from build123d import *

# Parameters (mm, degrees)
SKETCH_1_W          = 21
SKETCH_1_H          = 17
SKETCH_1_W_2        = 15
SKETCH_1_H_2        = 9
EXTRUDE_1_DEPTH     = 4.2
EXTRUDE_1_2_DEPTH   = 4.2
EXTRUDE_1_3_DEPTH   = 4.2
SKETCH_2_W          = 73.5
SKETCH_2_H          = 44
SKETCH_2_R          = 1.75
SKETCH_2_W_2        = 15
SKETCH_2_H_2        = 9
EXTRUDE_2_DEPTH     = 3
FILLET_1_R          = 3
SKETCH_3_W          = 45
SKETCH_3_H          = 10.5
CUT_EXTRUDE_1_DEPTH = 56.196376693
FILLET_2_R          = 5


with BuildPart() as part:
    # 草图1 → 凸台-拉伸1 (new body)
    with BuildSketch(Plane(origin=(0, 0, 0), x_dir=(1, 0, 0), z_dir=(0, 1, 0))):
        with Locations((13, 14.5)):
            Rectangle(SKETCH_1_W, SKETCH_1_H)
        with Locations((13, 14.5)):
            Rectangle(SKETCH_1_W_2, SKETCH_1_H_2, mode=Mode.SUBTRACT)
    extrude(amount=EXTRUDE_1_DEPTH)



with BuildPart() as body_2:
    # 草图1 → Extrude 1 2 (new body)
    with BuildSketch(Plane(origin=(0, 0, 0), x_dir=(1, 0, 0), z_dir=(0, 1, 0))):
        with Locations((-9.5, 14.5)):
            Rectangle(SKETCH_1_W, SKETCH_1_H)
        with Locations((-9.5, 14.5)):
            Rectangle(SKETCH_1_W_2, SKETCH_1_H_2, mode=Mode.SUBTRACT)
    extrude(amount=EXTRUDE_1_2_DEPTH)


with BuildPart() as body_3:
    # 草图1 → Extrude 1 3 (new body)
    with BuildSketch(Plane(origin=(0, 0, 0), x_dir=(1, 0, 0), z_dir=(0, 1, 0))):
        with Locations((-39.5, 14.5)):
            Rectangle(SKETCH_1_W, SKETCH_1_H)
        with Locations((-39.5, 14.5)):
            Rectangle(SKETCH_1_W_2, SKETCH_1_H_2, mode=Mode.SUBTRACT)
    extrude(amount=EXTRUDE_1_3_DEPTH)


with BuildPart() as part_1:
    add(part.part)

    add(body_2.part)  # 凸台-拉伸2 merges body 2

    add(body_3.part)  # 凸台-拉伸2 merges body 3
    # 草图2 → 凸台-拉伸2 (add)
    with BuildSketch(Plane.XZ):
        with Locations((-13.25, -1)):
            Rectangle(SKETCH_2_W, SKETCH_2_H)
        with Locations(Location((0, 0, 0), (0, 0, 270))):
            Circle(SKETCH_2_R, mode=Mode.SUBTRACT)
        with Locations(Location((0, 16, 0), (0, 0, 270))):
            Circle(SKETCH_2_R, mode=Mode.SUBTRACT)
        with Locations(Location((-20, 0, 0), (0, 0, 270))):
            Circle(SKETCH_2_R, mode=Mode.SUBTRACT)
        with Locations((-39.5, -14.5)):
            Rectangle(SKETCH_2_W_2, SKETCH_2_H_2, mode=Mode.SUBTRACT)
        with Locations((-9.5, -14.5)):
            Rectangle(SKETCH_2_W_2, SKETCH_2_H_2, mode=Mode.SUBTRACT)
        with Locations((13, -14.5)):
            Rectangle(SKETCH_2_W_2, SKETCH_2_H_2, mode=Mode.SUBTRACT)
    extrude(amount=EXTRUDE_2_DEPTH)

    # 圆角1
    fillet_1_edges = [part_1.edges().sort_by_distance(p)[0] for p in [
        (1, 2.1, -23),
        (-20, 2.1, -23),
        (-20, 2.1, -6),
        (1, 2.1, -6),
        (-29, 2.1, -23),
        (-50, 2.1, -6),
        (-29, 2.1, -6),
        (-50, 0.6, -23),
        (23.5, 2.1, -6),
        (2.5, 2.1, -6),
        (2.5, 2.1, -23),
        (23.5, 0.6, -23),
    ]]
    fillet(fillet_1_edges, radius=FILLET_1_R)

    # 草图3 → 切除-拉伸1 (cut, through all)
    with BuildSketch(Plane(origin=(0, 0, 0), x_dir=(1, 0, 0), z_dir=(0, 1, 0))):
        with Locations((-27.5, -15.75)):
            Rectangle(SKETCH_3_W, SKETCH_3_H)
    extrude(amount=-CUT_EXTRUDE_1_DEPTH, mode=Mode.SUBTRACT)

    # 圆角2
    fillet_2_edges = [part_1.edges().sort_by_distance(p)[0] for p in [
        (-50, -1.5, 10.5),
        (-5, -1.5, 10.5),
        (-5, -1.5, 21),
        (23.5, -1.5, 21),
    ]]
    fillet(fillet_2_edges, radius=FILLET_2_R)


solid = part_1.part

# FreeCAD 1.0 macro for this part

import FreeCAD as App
import Part
import Sketcher
from FreeCAD import Vector


def edges_at(feature, points):
    """Names of the edges that pass closest to the given points."""
    edges = feature.Shape.Edges
    near = lambda p: min(range(len(edges)), key=lambda i: edges[i].distToShape(Part.Vertex(*p))[0])
    return sorted({f"Edge{near(p) + 1}" for p in points})

doc = App.newDocument("Part")
body = doc.addObject("PartDesign::Body", "Body")

# Sketch on XZ plane
sketch1 = doc.addObject("Sketcher::SketchObject", "Sketch")
body.addObject(sketch1)
sketch1.AttachmentSupport = (doc.XZ_Plane, [""])
sketch1.MapMode = "FlatFace"
sketch1.addGeometry(Part.LineSegment(Vector(2, -23, 0), Vector(2, -6, 0)), False)
sketch1.addGeometry(Part.LineSegment(Vector(2, -6, 0), Vector(24, -6, 0)), False)
sketch1.addGeometry(Part.LineSegment(Vector(24, -6, 0), Vector(24, -23, 0)), False)
sketch1.addGeometry(Part.LineSegment(Vector(24, -23, 0), Vector(2, -23, 0)), False)
sketch1.addGeometry(Part.LineSegment(Vector(20, -10, 0), Vector(6, -10, 0)), False)
sketch1.addGeometry(Part.LineSegment(Vector(6, -10, 0), Vector(6, -19, 0)), False)
sketch1.addGeometry(Part.LineSegment(Vector(6, -19, 0), Vector(20, -19, 0)), False)
sketch1.addGeometry(Part.LineSegment(Vector(20, -19, 0), Vector(20, -10, 0)), False)
sketch1.addConstraint(Sketcher.Constraint("Coincident", 0, 2, 1, 1))
sketch1.addConstraint(Sketcher.Constraint("Coincident", 1, 2, 2, 1))
sketch1.addConstraint(Sketcher.Constraint("Coincident", 2, 2, 3, 1))
sketch1.addConstraint(Sketcher.Constraint("Coincident", 3, 2, 0, 1))
sketch1.addConstraint(Sketcher.Constraint("Coincident", 4, 2, 5, 1))
sketch1.addConstraint(Sketcher.Constraint("Coincident", 5, 2, 6, 1))
sketch1.addConstraint(Sketcher.Constraint("Coincident", 6, 2, 7, 1))
sketch1.addConstraint(Sketcher.Constraint("Coincident", 7, 2, 4, 1))
sketch1.addConstraint(Sketcher.Constraint("Vertical", 0))
sketch1.addConstraint(Sketcher.Constraint("Horizontal", 1))
sketch1.addConstraint(Sketcher.Constraint("Vertical", 2))
sketch1.addConstraint(Sketcher.Constraint("Horizontal", 3))
sketch1.addConstraint(Sketcher.Constraint("Horizontal", 4))
sketch1.addConstraint(Sketcher.Constraint("Vertical", 5))
sketch1.addConstraint(Sketcher.Constraint("Horizontal", 6))
sketch1.addConstraint(Sketcher.Constraint("Vertical", 7))
sketch1.addConstraint(Sketcher.Constraint("DistanceX", 1, 1, 1, 2, 21.0))
sketch1.addConstraint(Sketcher.Constraint("DistanceX", 4, 2, 4, 1, 15.0))
sketch1.addConstraint(Sketcher.Constraint("DistanceY", 0, 1, 0, 2, 17.0))
sketch1.addConstraint(Sketcher.Constraint("DistanceY", 5, 2, 5, 1, 9.0))
sketch1.addConstraint(Sketcher.Constraint("DistanceY", 0, 2, -1, 1, 6.0))
sketch1.addConstraint(Sketcher.Constraint("DistanceY", 4, 2, -1, 1, 10.0))
sketch1.addConstraint(Sketcher.Constraint("DistanceX", 0, 2, 4, 2, 3.0))
sketch1.addConstraint(Sketcher.Constraint("DistanceX", -1, 1, 0, 2, 2.5))
pad1 = doc.addObject("PartDesign::Pad", "Pad")
body.addObject(pad1)
pad1.Profile = sketch1
pad1.Length = 4.2
pad1.Reversed = True
body2 = doc.addObject("PartDesign::Body", "Body001")

# Sketch on XZ plane
sketch2 = doc.addObject("Sketcher::SketchObject", "Sketch001")
body2.addObject(sketch2)
sketch2.AttachmentSupport = (doc.getObject("XZ_Plane001"), [""])
sketch2.MapMode = "FlatFace"
sketch2.addGeometry(Part.LineSegment(Vector(-20, -23, 0), Vector(-20, -6, 0)), False)
sketch2.addGeometry(Part.LineSegment(Vector(-20, -6, 0), Vector(1, -6, 0)), False)
sketch2.addGeometry(Part.LineSegment(Vector(1, -6, 0), Vector(1, -23, 0)), False)
sketch2.addGeometry(Part.LineSegment(Vector(1, -23, 0), Vector(-20, -23, 0)), False)
sketch2.addGeometry(Part.LineSegment(Vector(-2, -10, 0), Vector(-17, -10, 0)), False)
sketch2.addGeometry(Part.LineSegment(Vector(-17, -10, 0), Vector(-17, -19, 0)), False)
sketch2.addGeometry(Part.LineSegment(Vector(-17, -19, 0), Vector(-2, -19, 0)), False)
sketch2.addGeometry(Part.LineSegment(Vector(-2, -19, 0), Vector(-2, -10, 0)), False)
sketch2.addConstraint(Sketcher.Constraint("Coincident", 0, 2, 1, 1))
sketch2.addConstraint(Sketcher.Constraint("Coincident", 1, 2, 2, 1))
sketch2.addConstraint(Sketcher.Constraint("Coincident", 2, 2, 3, 1))
sketch2.addConstraint(Sketcher.Constraint("Coincident", 3, 2, 0, 1))
sketch2.addConstraint(Sketcher.Constraint("Coincident", 4, 2, 5, 1))
sketch2.addConstraint(Sketcher.Constraint("Coincident", 5, 2, 6, 1))
sketch2.addConstraint(Sketcher.Constraint("Coincident", 6, 2, 7, 1))
sketch2.addConstraint(Sketcher.Constraint("Coincident", 7, 2, 4, 1))
sketch2.addConstraint(Sketcher.Constraint("Vertical", 0))
sketch2.addConstraint(Sketcher.Constraint("Horizontal", 1))
sketch2.addConstraint(Sketcher.Constraint("Vertical", 2))
sketch2.addConstraint(Sketcher.Constraint("Horizontal", 3))
sketch2.addConstraint(Sketcher.Constraint("Horizontal", 4))
sketch2.addConstraint(Sketcher.Constraint("Vertical", 5))
sketch2.addConstraint(Sketcher.Constraint("Horizontal", 6))
sketch2.addConstraint(Sketcher.Constraint("Vertical", 7))
sketch2.addConstraint(Sketcher.Constraint("DistanceX", 1, 1, 1, 2, 21.0))
sketch2.addConstraint(Sketcher.Constraint("DistanceX", 4, 2, 4, 1, 15.0))
sketch2.addConstraint(Sketcher.Constraint("DistanceY", 0, 1, 0, 2, 17.0))
sketch2.addConstraint(Sketcher.Constraint("DistanceY", 5, 2, 5, 1, 9.0))
sketch2.addConstraint(Sketcher.Constraint("DistanceX", 0, 2, -1, 1, 20.0))
sketch2.addConstraint(Sketcher.Constraint("DistanceY", 0, 2, -1, 1, 6.0))
sketch2.addConstraint(Sketcher.Constraint("DistanceX", 4, 2, -1, 1, 17.0))
sketch2.addConstraint(Sketcher.Constraint("DistanceY", 4, 2, -1, 1, 10.0))
pad2 = doc.addObject("PartDesign::Pad", "Pad001")
body2.addObject(pad2)
pad2.Profile = sketch2
pad2.Length = 4.2
pad2.Reversed = True
body3 = doc.addObject("PartDesign::Body", "Body002")

# Sketch on XZ plane
sketch3 = doc.addObject("Sketcher::SketchObject", "Sketch002")
body3.addObject(sketch3)
sketch3.AttachmentSupport = (doc.getObject("XZ_Plane002"), [""])
sketch3.MapMode = "FlatFace"
sketch3.addGeometry(Part.LineSegment(Vector(-50, -23, 0), Vector(-50, -6, 0)), False)
sketch3.addGeometry(Part.LineSegment(Vector(-50, -6, 0), Vector(-29, -6, 0)), False)
sketch3.addGeometry(Part.LineSegment(Vector(-29, -6, 0), Vector(-29, -23, 0)), False)
sketch3.addGeometry(Part.LineSegment(Vector(-29, -23, 0), Vector(-50, -23, 0)), False)
sketch3.addGeometry(Part.LineSegment(Vector(-32, -10, 0), Vector(-47, -10, 0)), False)
sketch3.addGeometry(Part.LineSegment(Vector(-47, -10, 0), Vector(-47, -19, 0)), False)
sketch3.addGeometry(Part.LineSegment(Vector(-47, -19, 0), Vector(-32, -19, 0)), False)
sketch3.addGeometry(Part.LineSegment(Vector(-32, -19, 0), Vector(-32, -10, 0)), False)
sketch3.addConstraint(Sketcher.Constraint("Coincident", 0, 2, 1, 1))
sketch3.addConstraint(Sketcher.Constraint("Coincident", 1, 2, 2, 1))
sketch3.addConstraint(Sketcher.Constraint("Coincident", 2, 2, 3, 1))
sketch3.addConstraint(Sketcher.Constraint("Coincident", 3, 2, 0, 1))
sketch3.addConstraint(Sketcher.Constraint("Coincident", 4, 2, 5, 1))
sketch3.addConstraint(Sketcher.Constraint("Coincident", 5, 2, 6, 1))
sketch3.addConstraint(Sketcher.Constraint("Coincident", 6, 2, 7, 1))
sketch3.addConstraint(Sketcher.Constraint("Coincident", 7, 2, 4, 1))
sketch3.addConstraint(Sketcher.Constraint("Vertical", 0))
sketch3.addConstraint(Sketcher.Constraint("Horizontal", 1))
sketch3.addConstraint(Sketcher.Constraint("Vertical", 2))
sketch3.addConstraint(Sketcher.Constraint("Horizontal", 3))
sketch3.addConstraint(Sketcher.Constraint("Horizontal", 4))
sketch3.addConstraint(Sketcher.Constraint("Vertical", 5))
sketch3.addConstraint(Sketcher.Constraint("Horizontal", 6))
sketch3.addConstraint(Sketcher.Constraint("Vertical", 7))
sketch3.addConstraint(Sketcher.Constraint("DistanceX", 1, 1, 1, 2, 21.0))
sketch3.addConstraint(Sketcher.Constraint("DistanceX", 4, 2, 4, 1, 15.0))
sketch3.addConstraint(Sketcher.Constraint("DistanceY", 0, 1, 0, 2, 17.0))
sketch3.addConstraint(Sketcher.Constraint("DistanceY", 5, 2, 5, 1, 9.0))
sketch3.addConstraint(Sketcher.Constraint("DistanceX", 0, 2, -1, 1, 50.0))
sketch3.addConstraint(Sketcher.Constraint("DistanceY", 0, 2, -1, 1, 6.0))
sketch3.addConstraint(Sketcher.Constraint("DistanceX", 4, 2, -1, 1, 47.0))
sketch3.addConstraint(Sketcher.Constraint("DistanceY", 4, 2, -1, 1, 10.0))
pad3 = doc.addObject("PartDesign::Pad", "Pad002")
body3.addObject(pad3)
pad3.Profile = sketch3
pad3.Length = 4.2
pad3.Reversed = True
body.AllowCompound = True
doc.recompute()

boolean = doc.addObject("PartDesign::Boolean", "Boolean")
body.addObject(boolean)
boolean.Type = "Fuse"
boolean.addObjects([body2])
doc.recompute()

boolean2 = doc.addObject("PartDesign::Boolean", "Boolean001")
body.addObject(boolean2)
boolean2.Type = "Fuse"
boolean2.addObjects([body3])

# Sketch on XZ plane
sketch4 = doc.addObject("Sketcher::SketchObject", "Sketch003")
body.addObject(sketch4)
sketch4.AttachmentSupport = (doc.XZ_Plane, [""])
sketch4.MapMode = "FlatFace"
sketch4.addGeometry(Part.LineSegment(Vector(-50, 21, 0), Vector(-50, -23, 0)), False)
sketch4.addGeometry(Part.LineSegment(Vector(-50, -23, 0), Vector(23.5, -23, 0)), False)
sketch4.addGeometry(Part.LineSegment(Vector(23.5, -23, 0), Vector(23.5, 21, 0)), False)
sketch4.addGeometry(Part.LineSegment(Vector(23.5, 21, 0), Vector(-50, 21, 0)), False)
sketch4.addGeometry(Part.LineSegment(Vector(-32, -19, 0), Vector(-47, -19, 0)), False)
sketch4.addGeometry(Part.LineSegment(Vector(-47, -19, 0), Vector(-47, -10, 0)), False)
sketch4.addGeometry(Part.LineSegment(Vector(-47, -10, 0), Vector(-32, -10, 0)), False)
sketch4.addGeometry(Part.LineSegment(Vector(-32, -10, 0), Vector(-32, -19, 0)), False)
sketch4.addGeometry(Part.LineSegment(Vector(-2, -19, 0), Vector(-17, -19, 0)), False)
sketch4.addGeometry(Part.LineSegment(Vector(-17, -19, 0), Vector(-17, -10, 0)), False)
sketch4.addGeometry(Part.LineSegment(Vector(-17, -10, 0), Vector(-2, -10, 0)), False)
sketch4.addGeometry(Part.LineSegment(Vector(-2, -10, 0), Vector(-2, -19, 0)), False)
sketch4.addGeometry(Part.LineSegment(Vector(20.5, -19, 0), Vector(5.5, -19, 0)), False)
sketch4.addGeometry(Part.LineSegment(Vector(5.5, -19, 0), Vector(5.5, -10, 0)), False)
sketch4.addGeometry(Part.LineSegment(Vector(5.5, -10, 0), Vector(20.5, -10, 0)), False)
sketch4.addGeometry(Part.LineSegment(Vector(20.5, -10, 0), Vector(20.5, -19, 0)), False)
sketch4.addGeometry(Part.Circle(Vector(-20, 0, 0), Vector(0, 0, 1), 1.8), False)
sketch4.addGeometry(Part.Circle(Vector(0, 0, 0), Vector(0, 0, 1), 1.8), False)
sketch4.addGeometry(Part.Circle(Vector(0, 16, 0), Vector(0, 0, 1), 1.8), False)
sketch4.addConstraint(Sketcher.Constraint("Coincident", 0, 2, 1, 1))
sketch4.addConstraint(Sketcher.Constraint("Coincident", 1, 2, 2, 1))
sketch4.addConstraint(Sketcher.Constraint("Coincident", 2, 2, 3, 1))
sketch4.addConstraint(Sketcher.Constraint("Coincident", 3, 2, 0, 1))
sketch4.addConstraint(Sketcher.Constraint("Coincident", 4, 2, 5, 1))
sketch4.addConstraint(Sketcher.Constraint("Coincident", 5, 2, 6, 1))
sketch4.addConstraint(Sketcher.Constraint("Coincident", 6, 2, 7, 1))
sketch4.addConstraint(Sketcher.Constraint("Coincident", 7, 2, 4, 1))
sketch4.addConstraint(Sketcher.Constraint("Coincident", 8, 2, 9, 1))
sketch4.addConstraint(Sketcher.Constraint("Coincident", 9, 2, 10, 1))
sketch4.addConstraint(Sketcher.Constraint("Coincident", 10, 2, 11, 1))
sketch4.addConstraint(Sketcher.Constraint("Coincident", 11, 2, 8, 1))
sketch4.addConstraint(Sketcher.Constraint("Coincident", 12, 2, 13, 1))
sketch4.addConstraint(Sketcher.Constraint("Coincident", 13, 2, 14, 1))
sketch4.addConstraint(Sketcher.Constraint("Coincident", 14, 2, 15, 1))
sketch4.addConstraint(Sketcher.Constraint("Coincident", 15, 2, 12, 1))
sketch4.addConstraint(Sketcher.Constraint("Vertical", 0))
sketch4.addConstraint(Sketcher.Constraint("Horizontal", 1))
sketch4.addConstraint(Sketcher.Constraint("Vertical", 2))
sketch4.addConstraint(Sketcher.Constraint("Horizontal", 3))
sketch4.addConstraint(Sketcher.Constraint("Horizontal", 4))
sketch4.addConstraint(Sketcher.Constraint("Vertical", 5))
sketch4.addConstraint(Sketcher.Constraint("Horizontal", 6))
sketch4.addConstraint(Sketcher.Constraint("Vertical", 7))
sketch4.addConstraint(Sketcher.Constraint("Horizontal", 8))
sketch4.addConstraint(Sketcher.Constraint("Vertical", 9))
sketch4.addConstraint(Sketcher.Constraint("Horizontal", 10))
sketch4.addConstraint(Sketcher.Constraint("Vertical", 11))
sketch4.addConstraint(Sketcher.Constraint("Horizontal", 12))
sketch4.addConstraint(Sketcher.Constraint("Vertical", 13))
sketch4.addConstraint(Sketcher.Constraint("Horizontal", 14))
sketch4.addConstraint(Sketcher.Constraint("Vertical", 15))
sketch4.addConstraint(Sketcher.Constraint("Coincident", 17, 3, -1, 1))
sketch4.addConstraint(Sketcher.Constraint("Equal", 16, 17))
sketch4.addConstraint(Sketcher.Constraint("Equal", 17, 18))
sketch4.addConstraint(Sketcher.Constraint("PointOnObject", 16, 3, -1))
sketch4.addConstraint(Sketcher.Constraint("PointOnObject", 18, 3, -2))
sketch4.addConstraint(Sketcher.Constraint("Horizontal", 7, 2, 8, 2))
sketch4.addConstraint(Sketcher.Constraint("Horizontal", 6, 2, 9, 2))
sketch4.addConstraint(Sketcher.Constraint("Horizontal", 11, 2, 12, 2))
sketch4.addConstraint(Sketcher.Constraint("Horizontal", 10, 2, 13, 2))
sketch4.addConstraint(Sketcher.Constraint("Equal", 6, 8))
sketch4.addConstraint(Sketcher.Constraint("Equal", 10, 12))
sketch4.addConstraint(Sketcher.Constraint("Diameter", 16, 3.5))
sketch4.addConstraint(Sketcher.Constraint("DistanceX", 4, 2, 4, 1, 15.0))
sketch4.addConstraint(Sketcher.Constraint("DistanceY", 0, 2, 0, 1, 44.0))
sketch4.addConstraint(Sketcher.Constraint("DistanceY", 5, 1, 5, 2, 9.0))
sketch4.addConstraint(Sketcher.Constraint("DistanceX", 1, 1, 1, 2, 73.5))
sketch4.addConstraint(Sketcher.Constraint("DistanceX", 16, 3, -1, 1, 20.0))
sketch4.addConstraint(Sketcher.Constraint("DistanceY", -1, 1, 18, 3, 16.0))
sketch4.addConstraint(Sketcher.Constraint("DistanceX", 0, 2, -1, 1, 50.0))
sketch4.addConstraint(Sketcher.Constraint("DistanceY", 0, 2, -1, 1, 23.0))
sketch4.addConstraint(Sketcher.Constraint("DistanceX", 4, 2, -1, 1, 47.0))
sketch4.addConstraint(Sketcher.Constraint("DistanceY", 4, 2, -1, 1, 19.0))
sketch4.addConstraint(Sketcher.Constraint("DistanceX", 8, 2, -1, 1, 17.0))
sketch4.addConstraint(Sketcher.Constraint("DistanceX", 12, 2, 1, 2, 18.0))
pad4 = doc.addObject("PartDesign::Pad", "Pad003")
body.addObject(pad4)
pad4.Profile = sketch4
pad4.Length = 3
doc.recompute()

fillet = doc.addObject("PartDesign::Fillet", "Fillet")
body.addObject(fillet)
fillet.Base = (pad4, edges_at(pad4, [
    (1, 2.1, -23),
    (-20, 2.1, -23),
    (-20, 2.1, -6),
    (1, 2.1, -6),
    (-29, 2.1, -23),
    (-50, 2.1, -6),
    (-29, 2.1, -6),
    (-50, 0.6, -23),
    (23.5, 2.1, -6),
    (2.5, 2.1, -6),
    (2.5, 2.1, -23),
    (23.5, 0.6, -23),
]))
fillet.Radius = 3

# Sketch on XZ plane
sketch5 = doc.addObject("Sketcher::SketchObject", "Sketch004")
body.addObject(sketch5)
sketch5.AttachmentSupport = (doc.XZ_Plane, [""])
sketch5.MapMode = "FlatFace"
sketch5.addGeometry(Part.LineSegment(Vector(-50, 10, 0), Vector(-50, 21, 0)), False)
sketch5.addGeometry(Part.LineSegment(Vector(-50, 21, 0), Vector(-5, 21, 0)), False)
sketch5.addGeometry(Part.LineSegment(Vector(-5, 21, 0), Vector(-5, 10, 0)), False)
sketch5.addGeometry(Part.LineSegment(Vector(-5, 10, 0), Vector(-50, 10, 0)), False)
sketch5.addConstraint(Sketcher.Constraint("Coincident", 0, 2, 1, 1))
sketch5.addConstraint(Sketcher.Constraint("Coincident", 1, 2, 2, 1))
sketch5.addConstraint(Sketcher.Constraint("Coincident", 2, 2, 3, 1))
sketch5.addConstraint(Sketcher.Constraint("Coincident", 3, 2, 0, 1))
sketch5.addConstraint(Sketcher.Constraint("Vertical", 0))
sketch5.addConstraint(Sketcher.Constraint("Horizontal", 1))
sketch5.addConstraint(Sketcher.Constraint("Vertical", 2))
sketch5.addConstraint(Sketcher.Constraint("Horizontal", 3))
sketch5.addConstraint(Sketcher.Constraint("DistanceX", 1, 1, 1, 2, 45.0))
sketch5.addConstraint(Sketcher.Constraint("DistanceY", 0, 1, 0, 2, 10.5))
sketch5.addConstraint(Sketcher.Constraint("DistanceX", 0, 2, -1, 1, 50.0))
sketch5.addConstraint(Sketcher.Constraint("DistanceY", -1, 1, 0, 2, 21.0))
pocket1 = doc.addObject("PartDesign::Pocket", "Pocket")
body.addObject(pocket1)
pocket1.Profile = sketch5
pocket1.Type = "ThroughAll"
pocket1.Reversed = True
doc.recompute()

fillet2 = doc.addObject("PartDesign::Fillet", "Fillet001")
body.addObject(fillet2)
fillet2.Base = (pocket1, edges_at(pocket1, [
    (-50, -1.5, 10.5),
    (-5, -1.5, 10.5),
    (-5, -1.5, 21),
    (23.5, -1.5, 21),
]))
fillet2.Radius = 5

doc.recompute()
